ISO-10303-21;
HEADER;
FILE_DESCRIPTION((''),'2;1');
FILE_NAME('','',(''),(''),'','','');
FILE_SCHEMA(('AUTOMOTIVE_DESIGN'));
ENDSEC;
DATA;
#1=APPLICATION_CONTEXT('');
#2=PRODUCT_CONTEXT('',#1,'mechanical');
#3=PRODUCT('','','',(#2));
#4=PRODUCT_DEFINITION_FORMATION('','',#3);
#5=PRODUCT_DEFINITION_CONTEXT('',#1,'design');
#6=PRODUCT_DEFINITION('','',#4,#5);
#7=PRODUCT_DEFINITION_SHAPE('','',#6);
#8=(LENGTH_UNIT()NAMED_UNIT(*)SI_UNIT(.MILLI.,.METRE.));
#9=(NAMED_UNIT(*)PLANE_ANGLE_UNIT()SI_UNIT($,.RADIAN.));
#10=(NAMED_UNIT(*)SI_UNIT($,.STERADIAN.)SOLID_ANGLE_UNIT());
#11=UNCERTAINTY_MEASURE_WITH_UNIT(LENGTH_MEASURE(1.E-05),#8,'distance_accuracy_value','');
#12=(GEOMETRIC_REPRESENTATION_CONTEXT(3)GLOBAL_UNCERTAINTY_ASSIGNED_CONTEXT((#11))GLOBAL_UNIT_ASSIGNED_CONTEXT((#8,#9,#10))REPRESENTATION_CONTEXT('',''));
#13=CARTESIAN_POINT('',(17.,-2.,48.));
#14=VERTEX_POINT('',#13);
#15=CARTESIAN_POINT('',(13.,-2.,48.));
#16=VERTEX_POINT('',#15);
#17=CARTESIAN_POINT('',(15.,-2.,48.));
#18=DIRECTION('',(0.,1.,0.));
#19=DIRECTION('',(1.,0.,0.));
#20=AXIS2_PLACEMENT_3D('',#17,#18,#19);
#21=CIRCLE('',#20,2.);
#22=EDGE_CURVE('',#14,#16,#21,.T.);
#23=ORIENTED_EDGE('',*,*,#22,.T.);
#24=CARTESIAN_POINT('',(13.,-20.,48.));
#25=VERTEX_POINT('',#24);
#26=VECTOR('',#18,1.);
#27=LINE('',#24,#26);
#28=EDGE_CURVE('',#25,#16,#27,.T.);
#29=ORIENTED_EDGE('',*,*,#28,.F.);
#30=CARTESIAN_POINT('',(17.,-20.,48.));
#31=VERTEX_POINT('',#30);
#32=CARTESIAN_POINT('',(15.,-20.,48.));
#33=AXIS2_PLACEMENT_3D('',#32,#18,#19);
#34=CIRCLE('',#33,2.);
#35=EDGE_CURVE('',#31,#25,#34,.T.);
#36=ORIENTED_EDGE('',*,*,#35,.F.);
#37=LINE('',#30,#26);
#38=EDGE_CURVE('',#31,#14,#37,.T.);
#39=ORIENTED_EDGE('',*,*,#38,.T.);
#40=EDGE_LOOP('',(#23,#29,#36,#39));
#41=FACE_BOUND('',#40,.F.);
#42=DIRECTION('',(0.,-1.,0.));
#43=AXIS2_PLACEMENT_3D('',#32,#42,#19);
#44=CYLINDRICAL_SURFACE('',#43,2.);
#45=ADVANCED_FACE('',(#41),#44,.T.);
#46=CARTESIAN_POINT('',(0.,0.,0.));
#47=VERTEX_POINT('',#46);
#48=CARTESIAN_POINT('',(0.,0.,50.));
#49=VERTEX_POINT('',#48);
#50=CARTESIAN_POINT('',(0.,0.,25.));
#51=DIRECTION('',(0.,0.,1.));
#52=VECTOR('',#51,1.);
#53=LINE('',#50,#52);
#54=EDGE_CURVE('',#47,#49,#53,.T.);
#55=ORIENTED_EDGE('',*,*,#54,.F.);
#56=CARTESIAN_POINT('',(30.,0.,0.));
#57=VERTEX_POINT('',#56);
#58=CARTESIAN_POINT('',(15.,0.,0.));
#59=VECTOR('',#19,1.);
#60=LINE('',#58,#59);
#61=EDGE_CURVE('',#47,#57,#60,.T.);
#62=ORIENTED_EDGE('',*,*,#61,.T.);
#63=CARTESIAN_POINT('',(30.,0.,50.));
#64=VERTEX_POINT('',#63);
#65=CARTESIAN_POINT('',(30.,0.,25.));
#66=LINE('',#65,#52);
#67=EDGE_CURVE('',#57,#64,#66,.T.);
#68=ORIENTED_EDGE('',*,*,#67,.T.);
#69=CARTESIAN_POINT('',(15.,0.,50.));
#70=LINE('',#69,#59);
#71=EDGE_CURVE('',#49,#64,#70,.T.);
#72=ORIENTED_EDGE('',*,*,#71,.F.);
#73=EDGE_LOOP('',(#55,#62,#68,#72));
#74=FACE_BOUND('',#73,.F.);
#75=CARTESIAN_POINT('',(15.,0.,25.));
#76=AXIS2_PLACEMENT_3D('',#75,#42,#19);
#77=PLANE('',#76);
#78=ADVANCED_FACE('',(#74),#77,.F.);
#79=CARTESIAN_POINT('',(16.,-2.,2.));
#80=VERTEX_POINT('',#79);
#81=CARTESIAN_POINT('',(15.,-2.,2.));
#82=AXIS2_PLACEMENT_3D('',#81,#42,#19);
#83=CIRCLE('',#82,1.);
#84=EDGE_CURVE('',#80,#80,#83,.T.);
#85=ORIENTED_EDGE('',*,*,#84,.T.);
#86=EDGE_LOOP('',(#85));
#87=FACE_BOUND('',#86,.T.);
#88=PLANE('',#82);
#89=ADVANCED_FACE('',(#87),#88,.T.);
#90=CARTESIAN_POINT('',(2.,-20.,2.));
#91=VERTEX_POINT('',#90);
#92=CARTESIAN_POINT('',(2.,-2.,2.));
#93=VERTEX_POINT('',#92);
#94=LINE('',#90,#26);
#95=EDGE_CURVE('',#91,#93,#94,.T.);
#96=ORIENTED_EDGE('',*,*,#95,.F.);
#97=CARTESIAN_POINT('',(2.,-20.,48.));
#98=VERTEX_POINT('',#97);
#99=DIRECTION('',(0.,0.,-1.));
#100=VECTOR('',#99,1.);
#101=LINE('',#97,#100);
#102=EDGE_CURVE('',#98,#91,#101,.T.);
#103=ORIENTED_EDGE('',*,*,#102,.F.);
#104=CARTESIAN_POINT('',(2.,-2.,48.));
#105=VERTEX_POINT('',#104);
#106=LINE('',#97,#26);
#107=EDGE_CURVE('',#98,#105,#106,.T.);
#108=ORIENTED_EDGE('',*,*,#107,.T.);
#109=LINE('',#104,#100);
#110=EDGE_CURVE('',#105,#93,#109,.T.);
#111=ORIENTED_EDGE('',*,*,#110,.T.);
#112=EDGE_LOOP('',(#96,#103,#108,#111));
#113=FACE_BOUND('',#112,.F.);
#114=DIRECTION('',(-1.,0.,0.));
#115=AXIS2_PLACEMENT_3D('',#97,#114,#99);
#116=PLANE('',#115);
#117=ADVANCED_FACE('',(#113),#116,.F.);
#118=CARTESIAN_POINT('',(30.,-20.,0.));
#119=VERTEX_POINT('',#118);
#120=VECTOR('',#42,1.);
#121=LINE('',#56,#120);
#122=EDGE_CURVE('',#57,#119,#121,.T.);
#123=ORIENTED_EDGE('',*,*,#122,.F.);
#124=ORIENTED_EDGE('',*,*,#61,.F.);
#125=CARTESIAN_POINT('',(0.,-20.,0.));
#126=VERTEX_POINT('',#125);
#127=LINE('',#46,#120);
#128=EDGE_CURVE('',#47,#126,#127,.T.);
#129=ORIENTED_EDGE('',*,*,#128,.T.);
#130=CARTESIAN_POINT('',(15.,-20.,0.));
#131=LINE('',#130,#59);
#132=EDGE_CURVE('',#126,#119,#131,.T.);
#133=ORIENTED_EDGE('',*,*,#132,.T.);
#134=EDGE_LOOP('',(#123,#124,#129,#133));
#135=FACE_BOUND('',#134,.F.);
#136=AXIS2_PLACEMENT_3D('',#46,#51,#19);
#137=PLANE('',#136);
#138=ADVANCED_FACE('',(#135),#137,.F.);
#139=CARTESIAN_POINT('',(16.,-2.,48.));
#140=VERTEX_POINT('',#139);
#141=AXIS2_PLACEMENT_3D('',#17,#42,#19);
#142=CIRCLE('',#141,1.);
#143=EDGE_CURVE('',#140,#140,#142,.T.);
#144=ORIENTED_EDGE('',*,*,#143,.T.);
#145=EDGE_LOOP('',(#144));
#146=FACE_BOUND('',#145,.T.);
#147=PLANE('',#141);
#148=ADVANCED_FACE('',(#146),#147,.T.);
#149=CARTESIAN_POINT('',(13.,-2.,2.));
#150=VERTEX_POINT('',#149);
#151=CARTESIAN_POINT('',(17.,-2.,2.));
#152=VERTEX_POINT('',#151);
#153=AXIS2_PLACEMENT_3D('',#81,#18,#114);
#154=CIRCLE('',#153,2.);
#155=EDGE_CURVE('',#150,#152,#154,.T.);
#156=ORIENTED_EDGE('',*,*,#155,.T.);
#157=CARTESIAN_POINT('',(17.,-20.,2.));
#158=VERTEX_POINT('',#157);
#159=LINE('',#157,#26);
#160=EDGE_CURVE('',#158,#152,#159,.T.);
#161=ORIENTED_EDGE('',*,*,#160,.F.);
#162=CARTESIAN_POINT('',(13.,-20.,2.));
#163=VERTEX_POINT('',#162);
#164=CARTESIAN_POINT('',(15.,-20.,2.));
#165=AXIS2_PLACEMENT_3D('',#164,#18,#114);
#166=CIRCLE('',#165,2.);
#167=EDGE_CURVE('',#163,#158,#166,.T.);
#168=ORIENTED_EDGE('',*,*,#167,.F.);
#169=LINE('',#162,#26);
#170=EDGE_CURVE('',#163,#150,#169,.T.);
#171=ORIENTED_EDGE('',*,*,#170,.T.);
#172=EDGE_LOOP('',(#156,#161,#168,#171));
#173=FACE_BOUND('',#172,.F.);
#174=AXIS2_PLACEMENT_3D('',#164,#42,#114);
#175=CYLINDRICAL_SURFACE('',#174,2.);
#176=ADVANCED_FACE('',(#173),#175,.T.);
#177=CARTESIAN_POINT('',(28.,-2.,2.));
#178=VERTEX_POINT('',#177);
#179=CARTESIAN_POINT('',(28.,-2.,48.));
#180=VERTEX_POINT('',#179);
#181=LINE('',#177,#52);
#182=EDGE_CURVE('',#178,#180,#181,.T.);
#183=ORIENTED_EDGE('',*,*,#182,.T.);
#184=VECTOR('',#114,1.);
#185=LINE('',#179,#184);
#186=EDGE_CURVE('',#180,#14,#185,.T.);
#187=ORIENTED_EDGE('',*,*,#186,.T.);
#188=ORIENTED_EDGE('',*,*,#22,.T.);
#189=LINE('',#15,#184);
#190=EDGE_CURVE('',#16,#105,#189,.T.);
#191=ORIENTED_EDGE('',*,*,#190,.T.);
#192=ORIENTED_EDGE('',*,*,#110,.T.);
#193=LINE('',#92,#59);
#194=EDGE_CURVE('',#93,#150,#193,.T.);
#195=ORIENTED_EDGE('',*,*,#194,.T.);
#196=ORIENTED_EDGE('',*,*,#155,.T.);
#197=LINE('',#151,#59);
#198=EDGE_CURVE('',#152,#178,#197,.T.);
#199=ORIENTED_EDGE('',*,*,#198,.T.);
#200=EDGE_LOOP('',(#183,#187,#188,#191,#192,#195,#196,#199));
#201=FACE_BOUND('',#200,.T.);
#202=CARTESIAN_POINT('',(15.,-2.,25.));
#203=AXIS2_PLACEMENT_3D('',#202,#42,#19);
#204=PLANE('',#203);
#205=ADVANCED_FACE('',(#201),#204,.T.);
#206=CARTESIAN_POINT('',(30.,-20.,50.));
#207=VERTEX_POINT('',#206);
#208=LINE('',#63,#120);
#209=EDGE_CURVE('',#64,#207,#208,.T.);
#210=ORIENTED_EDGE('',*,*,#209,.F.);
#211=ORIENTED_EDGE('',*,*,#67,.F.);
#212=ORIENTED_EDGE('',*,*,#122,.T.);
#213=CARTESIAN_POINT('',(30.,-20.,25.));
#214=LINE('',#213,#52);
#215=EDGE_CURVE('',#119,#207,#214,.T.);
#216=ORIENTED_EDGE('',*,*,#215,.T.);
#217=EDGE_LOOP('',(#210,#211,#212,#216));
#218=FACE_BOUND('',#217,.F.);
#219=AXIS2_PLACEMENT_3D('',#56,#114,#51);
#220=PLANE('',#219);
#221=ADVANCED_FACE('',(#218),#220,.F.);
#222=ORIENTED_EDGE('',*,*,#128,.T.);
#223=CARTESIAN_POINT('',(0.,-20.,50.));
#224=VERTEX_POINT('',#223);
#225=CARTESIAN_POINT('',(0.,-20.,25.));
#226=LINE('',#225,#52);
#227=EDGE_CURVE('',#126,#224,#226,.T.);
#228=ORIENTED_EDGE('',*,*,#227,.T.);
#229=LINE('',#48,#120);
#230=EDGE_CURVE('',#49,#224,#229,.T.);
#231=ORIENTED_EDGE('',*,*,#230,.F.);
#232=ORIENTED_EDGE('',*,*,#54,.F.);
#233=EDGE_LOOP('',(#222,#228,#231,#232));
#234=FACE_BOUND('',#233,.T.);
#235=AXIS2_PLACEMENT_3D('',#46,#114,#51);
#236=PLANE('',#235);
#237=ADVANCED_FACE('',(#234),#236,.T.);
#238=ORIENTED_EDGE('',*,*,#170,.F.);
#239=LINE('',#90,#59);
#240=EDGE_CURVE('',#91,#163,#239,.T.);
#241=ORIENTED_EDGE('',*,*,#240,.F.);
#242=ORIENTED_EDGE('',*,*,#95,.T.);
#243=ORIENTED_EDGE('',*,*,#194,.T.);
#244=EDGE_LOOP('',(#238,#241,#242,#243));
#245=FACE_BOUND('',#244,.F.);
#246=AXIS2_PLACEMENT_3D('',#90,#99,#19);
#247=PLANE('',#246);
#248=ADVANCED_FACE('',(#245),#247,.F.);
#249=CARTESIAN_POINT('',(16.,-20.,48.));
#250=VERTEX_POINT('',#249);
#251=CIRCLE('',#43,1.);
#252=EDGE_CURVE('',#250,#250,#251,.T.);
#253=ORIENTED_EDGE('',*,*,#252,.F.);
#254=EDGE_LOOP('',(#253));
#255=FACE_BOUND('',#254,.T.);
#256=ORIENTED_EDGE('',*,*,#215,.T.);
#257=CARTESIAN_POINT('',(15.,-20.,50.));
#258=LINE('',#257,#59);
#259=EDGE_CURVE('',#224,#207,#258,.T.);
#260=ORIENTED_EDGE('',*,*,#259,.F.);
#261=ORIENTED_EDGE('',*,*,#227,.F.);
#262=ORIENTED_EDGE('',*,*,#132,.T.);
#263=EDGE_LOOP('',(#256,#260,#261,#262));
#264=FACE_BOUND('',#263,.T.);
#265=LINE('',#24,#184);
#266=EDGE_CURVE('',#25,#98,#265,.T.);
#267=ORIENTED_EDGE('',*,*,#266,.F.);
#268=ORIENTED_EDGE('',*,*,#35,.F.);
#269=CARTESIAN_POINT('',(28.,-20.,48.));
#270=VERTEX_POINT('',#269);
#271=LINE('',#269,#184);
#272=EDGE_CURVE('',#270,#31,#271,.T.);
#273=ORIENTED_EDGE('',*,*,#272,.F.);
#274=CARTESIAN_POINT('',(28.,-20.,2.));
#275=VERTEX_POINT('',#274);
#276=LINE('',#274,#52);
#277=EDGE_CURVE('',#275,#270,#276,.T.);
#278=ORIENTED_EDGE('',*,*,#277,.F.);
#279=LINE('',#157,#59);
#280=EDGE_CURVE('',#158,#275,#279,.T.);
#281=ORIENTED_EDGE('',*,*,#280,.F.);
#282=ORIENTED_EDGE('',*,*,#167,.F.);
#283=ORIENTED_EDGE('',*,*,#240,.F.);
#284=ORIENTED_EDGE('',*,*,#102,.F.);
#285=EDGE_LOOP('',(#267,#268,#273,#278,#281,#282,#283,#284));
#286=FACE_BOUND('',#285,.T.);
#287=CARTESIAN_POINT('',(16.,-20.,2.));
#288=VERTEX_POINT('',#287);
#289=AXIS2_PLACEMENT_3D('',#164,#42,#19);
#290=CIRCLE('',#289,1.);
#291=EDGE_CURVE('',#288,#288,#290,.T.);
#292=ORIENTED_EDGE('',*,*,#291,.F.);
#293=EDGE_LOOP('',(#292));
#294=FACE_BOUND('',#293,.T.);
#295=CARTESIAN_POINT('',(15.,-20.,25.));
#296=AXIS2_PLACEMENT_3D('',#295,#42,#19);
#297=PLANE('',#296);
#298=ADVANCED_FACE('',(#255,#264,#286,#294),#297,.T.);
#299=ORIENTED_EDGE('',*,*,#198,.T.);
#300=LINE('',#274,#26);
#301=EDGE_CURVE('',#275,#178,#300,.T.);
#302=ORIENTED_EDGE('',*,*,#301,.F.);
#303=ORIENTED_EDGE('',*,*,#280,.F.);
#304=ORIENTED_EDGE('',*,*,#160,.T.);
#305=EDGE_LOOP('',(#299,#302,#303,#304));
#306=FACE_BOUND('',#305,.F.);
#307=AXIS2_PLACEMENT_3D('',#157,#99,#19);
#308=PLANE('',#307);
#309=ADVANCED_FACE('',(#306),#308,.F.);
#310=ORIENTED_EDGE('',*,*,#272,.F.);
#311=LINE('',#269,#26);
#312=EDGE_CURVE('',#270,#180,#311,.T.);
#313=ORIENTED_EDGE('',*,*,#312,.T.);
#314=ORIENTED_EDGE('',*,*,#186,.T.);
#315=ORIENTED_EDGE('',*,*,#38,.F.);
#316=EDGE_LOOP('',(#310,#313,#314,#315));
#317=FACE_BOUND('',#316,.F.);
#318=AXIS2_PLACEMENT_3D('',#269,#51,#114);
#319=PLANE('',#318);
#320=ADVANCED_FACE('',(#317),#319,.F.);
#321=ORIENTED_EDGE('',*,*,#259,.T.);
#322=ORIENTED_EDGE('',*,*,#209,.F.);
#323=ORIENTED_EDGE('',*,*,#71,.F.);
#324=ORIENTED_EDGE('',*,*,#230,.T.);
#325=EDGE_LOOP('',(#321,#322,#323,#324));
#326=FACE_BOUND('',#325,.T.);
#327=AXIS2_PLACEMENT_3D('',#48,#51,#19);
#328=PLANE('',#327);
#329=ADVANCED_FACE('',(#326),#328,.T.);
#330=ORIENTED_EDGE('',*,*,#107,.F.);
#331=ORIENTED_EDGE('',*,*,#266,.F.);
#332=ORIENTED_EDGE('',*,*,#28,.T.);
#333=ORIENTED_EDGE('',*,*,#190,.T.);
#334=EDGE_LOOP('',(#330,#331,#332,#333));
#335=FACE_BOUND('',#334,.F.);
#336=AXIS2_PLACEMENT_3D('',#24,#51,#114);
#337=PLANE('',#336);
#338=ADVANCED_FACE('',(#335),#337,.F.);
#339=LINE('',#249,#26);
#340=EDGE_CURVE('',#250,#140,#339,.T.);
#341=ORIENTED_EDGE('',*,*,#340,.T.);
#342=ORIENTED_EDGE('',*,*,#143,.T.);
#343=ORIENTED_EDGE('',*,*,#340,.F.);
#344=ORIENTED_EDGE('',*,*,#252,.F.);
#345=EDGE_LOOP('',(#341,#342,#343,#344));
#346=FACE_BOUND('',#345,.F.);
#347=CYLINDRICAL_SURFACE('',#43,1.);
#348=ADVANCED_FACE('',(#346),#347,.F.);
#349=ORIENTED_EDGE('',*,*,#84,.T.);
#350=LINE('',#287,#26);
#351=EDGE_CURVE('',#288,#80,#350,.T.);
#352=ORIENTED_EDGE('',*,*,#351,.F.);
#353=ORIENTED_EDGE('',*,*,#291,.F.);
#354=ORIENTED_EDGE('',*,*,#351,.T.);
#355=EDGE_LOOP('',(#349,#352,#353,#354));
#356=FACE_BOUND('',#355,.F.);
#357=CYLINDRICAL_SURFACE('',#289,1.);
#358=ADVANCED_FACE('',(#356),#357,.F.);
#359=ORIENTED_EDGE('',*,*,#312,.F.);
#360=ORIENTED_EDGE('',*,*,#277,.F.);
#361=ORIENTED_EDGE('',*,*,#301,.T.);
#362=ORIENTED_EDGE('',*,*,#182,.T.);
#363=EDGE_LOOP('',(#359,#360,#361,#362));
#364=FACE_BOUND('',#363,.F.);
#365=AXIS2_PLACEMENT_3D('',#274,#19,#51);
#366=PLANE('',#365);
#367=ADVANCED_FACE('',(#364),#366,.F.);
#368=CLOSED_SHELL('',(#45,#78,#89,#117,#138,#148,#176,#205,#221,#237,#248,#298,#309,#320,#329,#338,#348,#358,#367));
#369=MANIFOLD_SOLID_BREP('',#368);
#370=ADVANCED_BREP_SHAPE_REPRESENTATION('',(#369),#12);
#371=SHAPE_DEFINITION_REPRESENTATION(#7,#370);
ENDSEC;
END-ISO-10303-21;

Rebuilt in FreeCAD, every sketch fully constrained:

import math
import FreeCAD as App
import Part
import Sketcher
Q = App.Units.Quantity


def add_polygon(sketch, points):
    """Adds a closed chain of lines whose ends are joined by coincident constraints."""
    first, n = sketch.GeometryCount, len(points)
    for a, b in zip(points, points[1:] + points[:1]):
        sketch.addGeometry(Part.LineSegment(App.Vector(*a, 0), App.Vector(*b, 0)), False)
    for i in range(n):
        sketch.addConstraint(Sketcher.Constraint("Coincident", first + i, 2, first + (i + 1) % n, 1))

doc = App.newDocument("Part")
body = doc.addObject("PartDesign::Body", "Body")

sketch1 = body.newObject("Sketcher::SketchObject", "Sketch")
sketch1.AttachmentSupport = (doc.getObject("XZ_Plane"), [""])
sketch1.MapMode = "FlatFace"
add_polygon(sketch1, [(0, 50), (0, 0), (30, 0), (30, 50)])
sketch1.addConstraint(Sketcher.Constraint("Vertical", 0))
sketch1.addConstraint(Sketcher.Constraint("Horizontal", 1))
sketch1.addConstraint(Sketcher.Constraint("Vertical", 2))
sketch1.addConstraint(Sketcher.Constraint("Horizontal", 3))
sketch1.addConstraint(Sketcher.Constraint("Coincident", 0, 2, -1, 1))
sketch1.addConstraint(Sketcher.Constraint("DistanceX", 1, 1, 1, 2, Q("30 mm")))
sketch1.addConstraint(Sketcher.Constraint("DistanceY", 0, 2, 0, 1, Q("50 mm")))
pad1 = body.newObject("PartDesign::Pad", "Pad")
pad1.Profile = sketch1
pad1.Length = 20

sketch2 = body.newObject("Sketcher::SketchObject", "Sketch001")
sketch2.AttachmentSupport = (doc.getObject("XZ_Plane"), [""])
sketch2.MapMode = "FlatFace"
sketch2.AttachmentOffset = App.Placement(App.Vector(0, 0, 20), App.Rotation())
sketch2.addGeometry(Part.LineSegment(App.Vector(2, 48, 0), App.Vector(2, 2, 0)), False)
sketch2.addGeometry(Part.LineSegment(App.Vector(2, 2, 0), App.Vector(13, 2, 0)), False)
sketch2.addGeometry(Part.ArcOfCircle(Part.Circle(App.Vector(15, 2, 0), App.Vector(0, 0, 1), 2), math.radians(0), math.radians(180)), False)
sketch2.addGeometry(Part.LineSegment(App.Vector(17, 2, 0), App.Vector(28, 2, 0)), False)
sketch2.addGeometry(Part.LineSegment(App.Vector(28, 2, 0), App.Vector(28, 48, 0)), False)
sketch2.addGeometry(Part.LineSegment(App.Vector(28, 48, 0), App.Vector(17, 48, 0)), False)
sketch2.addGeometry(Part.ArcOfCircle(Part.Circle(App.Vector(15, 48, 0), App.Vector(0, 0, 1), 2), math.radians(180), math.radians(360)), False)
sketch2.addGeometry(Part.LineSegment(App.Vector(13, 48, 0), App.Vector(2, 48, 0)), False)
sketch2.addGeometry(Part.Circle(App.Vector(15, 2, 0), App.Vector(0, 0, 1), 1), False)
sketch2.addGeometry(Part.Circle(App.Vector(15, 48, 0), App.Vector(0, 0, 1), 1), False)
sketch2.addConstraint(Sketcher.Constraint("Coincident", 0, 2, 1, 1))
sketch2.addConstraint(Sketcher.Constraint("Coincident", 1, 2, 2, 2))
sketch2.addConstraint(Sketcher.Constraint("Coincident", 2, 1, 3, 1))
sketch2.addConstraint(Sketcher.Constraint("Coincident", 3, 2, 4, 1))
sketch2.addConstraint(Sketcher.Constraint("Coincident", 4, 2, 5, 1))
sketch2.addConstraint(Sketcher.Constraint("Coincident", 5, 2, 6, 2))
sketch2.addConstraint(Sketcher.Constraint("Coincident", 6, 1, 7, 1))
sketch2.addConstraint(Sketcher.Constraint("Coincident", 7, 2, 0, 1))
sketch2.addConstraint(Sketcher.Constraint("Vertical", 0))
sketch2.addConstraint(Sketcher.Constraint("Horizontal", 1))
sketch2.addConstraint(Sketcher.Constraint("Horizontal", 3))
sketch2.addConstraint(Sketcher.Constraint("Vertical", 4))
sketch2.addConstraint(Sketcher.Constraint("Horizontal", 5))
sketch2.addConstraint(Sketcher.Constraint("Horizontal", 7))
sketch2.addConstraint(Sketcher.Constraint("Coincident", 8, 3, 2, 3))
sketch2.addConstraint(Sketcher.Constraint("Coincident", 9, 3, 6, 3))
sketch2.addConstraint(Sketcher.Constraint("Equal", 2, 6))
sketch2.addConstraint(Sketcher.Constraint("Equal", 8, 9))
sketch2.addConstraint(Sketcher.Constraint("Horizontal", 8, 3, 0, 2))
sketch2.addConstraint(Sketcher.Constraint("Horizontal", 1, 2, 2, 1))
sketch2.addConstraint(Sketcher.Constraint("Horizontal", 9, 3, 4, 2))
sketch2.addConstraint(Sketcher.Constraint("Horizontal", 5, 2, 6, 1))
sketch2.addConstraint(Sketcher.Constraint("Vertical", 2, 3, 6, 3))
sketch2.addConstraint(Sketcher.Constraint("Equal", 1, 3))
sketch2.addConstraint(Sketcher.Constraint("Diameter", 8, Q("2 mm")))
sketch2.addConstraint(Sketcher.Constraint("Radius", 2, Q("2 mm")))
sketch2.addConstraint(Sketcher.Constraint("DistanceX", 1, 1, 1, 2, Q("11 mm")))
sketch2.addConstraint(Sketcher.Constraint("DistanceY", 0, 2, 0, 1, Q("46 mm")))
sketch2.addConstraint(Sketcher.Constraint("DistanceX", -1, 1, 2, 3, Q("15 mm")))
sketch2.addConstraint(Sketcher.Constraint("DistanceY", -1, 1, 2, 3, Q("2 mm")))
pocket1 = body.newObject("PartDesign::Pocket", "Pocket")
pocket1.Profile = sketch2
pocket1.Length = 18

doc.recompute()
